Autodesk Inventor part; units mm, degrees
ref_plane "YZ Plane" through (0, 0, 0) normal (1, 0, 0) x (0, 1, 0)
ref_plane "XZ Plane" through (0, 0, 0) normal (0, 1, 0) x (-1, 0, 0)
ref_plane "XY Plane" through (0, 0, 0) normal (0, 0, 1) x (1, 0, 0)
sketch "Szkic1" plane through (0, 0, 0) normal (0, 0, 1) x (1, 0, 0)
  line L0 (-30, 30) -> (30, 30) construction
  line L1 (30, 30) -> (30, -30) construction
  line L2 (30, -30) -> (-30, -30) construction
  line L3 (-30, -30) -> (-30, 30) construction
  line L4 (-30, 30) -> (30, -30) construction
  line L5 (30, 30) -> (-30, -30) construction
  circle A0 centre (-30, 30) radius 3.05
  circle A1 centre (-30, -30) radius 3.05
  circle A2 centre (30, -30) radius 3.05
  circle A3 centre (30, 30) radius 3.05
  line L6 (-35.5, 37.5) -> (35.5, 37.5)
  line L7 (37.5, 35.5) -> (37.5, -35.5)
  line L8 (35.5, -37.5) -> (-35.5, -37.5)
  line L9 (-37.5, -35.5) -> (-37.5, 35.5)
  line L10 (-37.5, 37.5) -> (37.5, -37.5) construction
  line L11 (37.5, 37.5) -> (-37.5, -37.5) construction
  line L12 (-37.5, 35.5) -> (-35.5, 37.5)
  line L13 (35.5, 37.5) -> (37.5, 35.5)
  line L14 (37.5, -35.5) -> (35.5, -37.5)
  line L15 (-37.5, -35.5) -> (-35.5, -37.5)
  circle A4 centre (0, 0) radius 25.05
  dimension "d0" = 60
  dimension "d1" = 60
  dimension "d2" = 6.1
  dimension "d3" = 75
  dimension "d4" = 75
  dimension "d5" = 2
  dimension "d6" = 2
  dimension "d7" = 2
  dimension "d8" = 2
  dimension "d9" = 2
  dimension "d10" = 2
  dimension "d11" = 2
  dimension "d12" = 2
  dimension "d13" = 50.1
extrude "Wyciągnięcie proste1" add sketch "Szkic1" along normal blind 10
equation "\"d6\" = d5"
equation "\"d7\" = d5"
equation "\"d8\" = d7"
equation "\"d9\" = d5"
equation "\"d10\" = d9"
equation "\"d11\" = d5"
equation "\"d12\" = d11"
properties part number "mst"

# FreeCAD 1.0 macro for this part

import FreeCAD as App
import Part
import Sketcher

doc = App.newDocument("Part")
body = doc.addObject("PartDesign::Body", "Body")

sketch1 = body.newObject("Sketcher::SketchObject", "Sketch")
sketch1.AttachmentSupport = (doc.getObject("XY_Plane"), [""])
sketch1.MapMode = "FlatFace"
sketch1.addGeometry(Part.LineSegment(App.Vector(35.5, 37.5, 0), App.Vector(-35.5, 37.5, 0)), False)
sketch1.addGeometry(Part.LineSegment(App.Vector(-35.5, 37.5, 0), App.Vector(-37.5, 35.5, 0)), False)
sketch1.addGeometry(Part.LineSegment(App.Vector(-37.5, 35.5, 0), App.Vector(-37.5, -35.5, 0)), False)
sketch1.addGeometry(Part.LineSegment(App.Vector(-37.5, -35.5, 0), App.Vector(-35.5, -37.5, 0)), False)
sketch1.addGeometry(Part.LineSegment(App.Vector(-35.5, -37.5, 0), App.Vector(35.5, -37.5, 0)), False)
sketch1.addGeometry(Part.LineSegment(App.Vector(35.5, -37.5, 0), App.Vector(37.5, -35.5, 0)), False)
sketch1.addGeometry(Part.LineSegment(App.Vector(37.5, -35.5, 0), App.Vector(37.5, 35.5, 0)), False)
sketch1.addGeometry(Part.LineSegment(App.Vector(37.5, 35.5, 0), App.Vector(35.5, 37.5, 0)), False)
sketch1.addGeometry(Part.Circle(App.Vector(-30, -30, 0), App.Vector(0, 0, 1), 3), False)
sketch1.addGeometry(Part.Circle(App.Vector(30, -30, 0), App.Vector(0, 0, 1), 3), False)
sketch1.addGeometry(Part.Circle(App.Vector(-30, 30, 0), App.Vector(0, 0, 1), 3), False)
sketch1.addGeometry(Part.Circle(App.Vector(0, 0, 0), App.Vector(0, 0, 1), 25.1), False)
sketch1.addGeometry(Part.Circle(App.Vector(30, 30, 0), App.Vector(0, 0, 1), 3), False)
sketch1.addConstraint(Sketcher.Constraint("Coincident", 0, 2, 1, 1))
sketch1.addConstraint(Sketcher.Constraint("Coincident", 1, 2, 2, 1))
sketch1.addConstraint(Sketcher.Constraint("Coincident", 2, 2, 3, 1))
sketch1.addConstraint(Sketcher.Constraint("Coincident", 3, 2, 4, 1))
sketch1.addConstraint(Sketcher.Constraint("Coincident", 4, 2, 5, 1))
sketch1.addConstraint(Sketcher.Constraint("Coincident", 5, 2, 6, 1))
sketch1.addConstraint(Sketcher.Constraint("Coincident", 6, 2, 7, 1))
sketch1.addConstraint(Sketcher.Constraint("Coincident", 7, 2, 0, 1))
sketch1.addConstraint(Sketcher.Constraint("Horizontal", 0))
sketch1.addConstraint(Sketcher.Constraint("Vertical", 2))
sketch1.addConstraint(Sketcher.Constraint("Horizontal", 4))
sketch1.addConstraint(Sketcher.Constraint("Vertical", 6))
sketch1.addConstraint(Sketcher.Constraint("Coincident", 11, 3, -1, 1))
sketch1.addConstraint(Sketcher.Constraint("Equal", 8, 9))
sketch1.addConstraint(Sketcher.Constraint("Equal", 9, 10))
sketch1.addConstraint(Sketcher.Constraint("Equal", 10, 12))
sketch1.addConstraint(Sketcher.Constraint("Symmetric", 9, 3, 10, 3, -1, 1))
sketch1.addConstraint(Sketcher.Constraint("Symmetric", 8, 3, 12, 3, -1, 1))
sketch1.addConstraint(Sketcher.Constraint("Symmetric", 0, 2, 4, 2, -1, 1))
sketch1.addConstraint(Sketcher.Constraint("Symmetric", 1, 2, 5, 2, -1, 1))
sketch1.addConstraint(Sketcher.Constraint("Symmetric", 8, 3, 9, 3, -2))
sketch1.addConstraint(Sketcher.Constraint("Perpendicular", 1, 3))
sketch1.addConstraint(Sketcher.Constraint("Perpendicular", 5, 7))
sketch1.addConstraint(Sketcher.Constraint("Horizontal", 2, 2, 5, 2))
sketch1.addConstraint(Sketcher.Constraint("Horizontal", 1, 2, 6, 2))
sketch1.addConstraint(Sketcher.Constraint("Vertical", 0, 2, 3, 2))
sketch1.addConstraint(Sketcher.Constraint("Equal", 4, 2))
sketch1.addConstraint(Sketcher.Constraint("Diameter", 8, 6.1))
sketch1.addConstraint(Sketcher.Constraint("Diameter", 11, 50.1))
sketch1.addConstraint(Sketcher.Constraint("DistanceX", 8, 3, 9, 3, 60.0))
sketch1.addConstraint(Sketcher.Constraint("DistanceY", 8, 3, 10, 3, 60.0))
sketch1.addConstraint(Sketcher.Constraint("DistanceX", 1, 2, 0, 2, 2.0))
sketch1.addConstraint(Sketcher.Constraint("DistanceX", 0, 2, 0, 1, 71.0))
pad1 = body.newObject("PartDesign::Pad", "Pad")
pad1.Profile = sketch1
pad1.Length = 10

doc.recompute()
